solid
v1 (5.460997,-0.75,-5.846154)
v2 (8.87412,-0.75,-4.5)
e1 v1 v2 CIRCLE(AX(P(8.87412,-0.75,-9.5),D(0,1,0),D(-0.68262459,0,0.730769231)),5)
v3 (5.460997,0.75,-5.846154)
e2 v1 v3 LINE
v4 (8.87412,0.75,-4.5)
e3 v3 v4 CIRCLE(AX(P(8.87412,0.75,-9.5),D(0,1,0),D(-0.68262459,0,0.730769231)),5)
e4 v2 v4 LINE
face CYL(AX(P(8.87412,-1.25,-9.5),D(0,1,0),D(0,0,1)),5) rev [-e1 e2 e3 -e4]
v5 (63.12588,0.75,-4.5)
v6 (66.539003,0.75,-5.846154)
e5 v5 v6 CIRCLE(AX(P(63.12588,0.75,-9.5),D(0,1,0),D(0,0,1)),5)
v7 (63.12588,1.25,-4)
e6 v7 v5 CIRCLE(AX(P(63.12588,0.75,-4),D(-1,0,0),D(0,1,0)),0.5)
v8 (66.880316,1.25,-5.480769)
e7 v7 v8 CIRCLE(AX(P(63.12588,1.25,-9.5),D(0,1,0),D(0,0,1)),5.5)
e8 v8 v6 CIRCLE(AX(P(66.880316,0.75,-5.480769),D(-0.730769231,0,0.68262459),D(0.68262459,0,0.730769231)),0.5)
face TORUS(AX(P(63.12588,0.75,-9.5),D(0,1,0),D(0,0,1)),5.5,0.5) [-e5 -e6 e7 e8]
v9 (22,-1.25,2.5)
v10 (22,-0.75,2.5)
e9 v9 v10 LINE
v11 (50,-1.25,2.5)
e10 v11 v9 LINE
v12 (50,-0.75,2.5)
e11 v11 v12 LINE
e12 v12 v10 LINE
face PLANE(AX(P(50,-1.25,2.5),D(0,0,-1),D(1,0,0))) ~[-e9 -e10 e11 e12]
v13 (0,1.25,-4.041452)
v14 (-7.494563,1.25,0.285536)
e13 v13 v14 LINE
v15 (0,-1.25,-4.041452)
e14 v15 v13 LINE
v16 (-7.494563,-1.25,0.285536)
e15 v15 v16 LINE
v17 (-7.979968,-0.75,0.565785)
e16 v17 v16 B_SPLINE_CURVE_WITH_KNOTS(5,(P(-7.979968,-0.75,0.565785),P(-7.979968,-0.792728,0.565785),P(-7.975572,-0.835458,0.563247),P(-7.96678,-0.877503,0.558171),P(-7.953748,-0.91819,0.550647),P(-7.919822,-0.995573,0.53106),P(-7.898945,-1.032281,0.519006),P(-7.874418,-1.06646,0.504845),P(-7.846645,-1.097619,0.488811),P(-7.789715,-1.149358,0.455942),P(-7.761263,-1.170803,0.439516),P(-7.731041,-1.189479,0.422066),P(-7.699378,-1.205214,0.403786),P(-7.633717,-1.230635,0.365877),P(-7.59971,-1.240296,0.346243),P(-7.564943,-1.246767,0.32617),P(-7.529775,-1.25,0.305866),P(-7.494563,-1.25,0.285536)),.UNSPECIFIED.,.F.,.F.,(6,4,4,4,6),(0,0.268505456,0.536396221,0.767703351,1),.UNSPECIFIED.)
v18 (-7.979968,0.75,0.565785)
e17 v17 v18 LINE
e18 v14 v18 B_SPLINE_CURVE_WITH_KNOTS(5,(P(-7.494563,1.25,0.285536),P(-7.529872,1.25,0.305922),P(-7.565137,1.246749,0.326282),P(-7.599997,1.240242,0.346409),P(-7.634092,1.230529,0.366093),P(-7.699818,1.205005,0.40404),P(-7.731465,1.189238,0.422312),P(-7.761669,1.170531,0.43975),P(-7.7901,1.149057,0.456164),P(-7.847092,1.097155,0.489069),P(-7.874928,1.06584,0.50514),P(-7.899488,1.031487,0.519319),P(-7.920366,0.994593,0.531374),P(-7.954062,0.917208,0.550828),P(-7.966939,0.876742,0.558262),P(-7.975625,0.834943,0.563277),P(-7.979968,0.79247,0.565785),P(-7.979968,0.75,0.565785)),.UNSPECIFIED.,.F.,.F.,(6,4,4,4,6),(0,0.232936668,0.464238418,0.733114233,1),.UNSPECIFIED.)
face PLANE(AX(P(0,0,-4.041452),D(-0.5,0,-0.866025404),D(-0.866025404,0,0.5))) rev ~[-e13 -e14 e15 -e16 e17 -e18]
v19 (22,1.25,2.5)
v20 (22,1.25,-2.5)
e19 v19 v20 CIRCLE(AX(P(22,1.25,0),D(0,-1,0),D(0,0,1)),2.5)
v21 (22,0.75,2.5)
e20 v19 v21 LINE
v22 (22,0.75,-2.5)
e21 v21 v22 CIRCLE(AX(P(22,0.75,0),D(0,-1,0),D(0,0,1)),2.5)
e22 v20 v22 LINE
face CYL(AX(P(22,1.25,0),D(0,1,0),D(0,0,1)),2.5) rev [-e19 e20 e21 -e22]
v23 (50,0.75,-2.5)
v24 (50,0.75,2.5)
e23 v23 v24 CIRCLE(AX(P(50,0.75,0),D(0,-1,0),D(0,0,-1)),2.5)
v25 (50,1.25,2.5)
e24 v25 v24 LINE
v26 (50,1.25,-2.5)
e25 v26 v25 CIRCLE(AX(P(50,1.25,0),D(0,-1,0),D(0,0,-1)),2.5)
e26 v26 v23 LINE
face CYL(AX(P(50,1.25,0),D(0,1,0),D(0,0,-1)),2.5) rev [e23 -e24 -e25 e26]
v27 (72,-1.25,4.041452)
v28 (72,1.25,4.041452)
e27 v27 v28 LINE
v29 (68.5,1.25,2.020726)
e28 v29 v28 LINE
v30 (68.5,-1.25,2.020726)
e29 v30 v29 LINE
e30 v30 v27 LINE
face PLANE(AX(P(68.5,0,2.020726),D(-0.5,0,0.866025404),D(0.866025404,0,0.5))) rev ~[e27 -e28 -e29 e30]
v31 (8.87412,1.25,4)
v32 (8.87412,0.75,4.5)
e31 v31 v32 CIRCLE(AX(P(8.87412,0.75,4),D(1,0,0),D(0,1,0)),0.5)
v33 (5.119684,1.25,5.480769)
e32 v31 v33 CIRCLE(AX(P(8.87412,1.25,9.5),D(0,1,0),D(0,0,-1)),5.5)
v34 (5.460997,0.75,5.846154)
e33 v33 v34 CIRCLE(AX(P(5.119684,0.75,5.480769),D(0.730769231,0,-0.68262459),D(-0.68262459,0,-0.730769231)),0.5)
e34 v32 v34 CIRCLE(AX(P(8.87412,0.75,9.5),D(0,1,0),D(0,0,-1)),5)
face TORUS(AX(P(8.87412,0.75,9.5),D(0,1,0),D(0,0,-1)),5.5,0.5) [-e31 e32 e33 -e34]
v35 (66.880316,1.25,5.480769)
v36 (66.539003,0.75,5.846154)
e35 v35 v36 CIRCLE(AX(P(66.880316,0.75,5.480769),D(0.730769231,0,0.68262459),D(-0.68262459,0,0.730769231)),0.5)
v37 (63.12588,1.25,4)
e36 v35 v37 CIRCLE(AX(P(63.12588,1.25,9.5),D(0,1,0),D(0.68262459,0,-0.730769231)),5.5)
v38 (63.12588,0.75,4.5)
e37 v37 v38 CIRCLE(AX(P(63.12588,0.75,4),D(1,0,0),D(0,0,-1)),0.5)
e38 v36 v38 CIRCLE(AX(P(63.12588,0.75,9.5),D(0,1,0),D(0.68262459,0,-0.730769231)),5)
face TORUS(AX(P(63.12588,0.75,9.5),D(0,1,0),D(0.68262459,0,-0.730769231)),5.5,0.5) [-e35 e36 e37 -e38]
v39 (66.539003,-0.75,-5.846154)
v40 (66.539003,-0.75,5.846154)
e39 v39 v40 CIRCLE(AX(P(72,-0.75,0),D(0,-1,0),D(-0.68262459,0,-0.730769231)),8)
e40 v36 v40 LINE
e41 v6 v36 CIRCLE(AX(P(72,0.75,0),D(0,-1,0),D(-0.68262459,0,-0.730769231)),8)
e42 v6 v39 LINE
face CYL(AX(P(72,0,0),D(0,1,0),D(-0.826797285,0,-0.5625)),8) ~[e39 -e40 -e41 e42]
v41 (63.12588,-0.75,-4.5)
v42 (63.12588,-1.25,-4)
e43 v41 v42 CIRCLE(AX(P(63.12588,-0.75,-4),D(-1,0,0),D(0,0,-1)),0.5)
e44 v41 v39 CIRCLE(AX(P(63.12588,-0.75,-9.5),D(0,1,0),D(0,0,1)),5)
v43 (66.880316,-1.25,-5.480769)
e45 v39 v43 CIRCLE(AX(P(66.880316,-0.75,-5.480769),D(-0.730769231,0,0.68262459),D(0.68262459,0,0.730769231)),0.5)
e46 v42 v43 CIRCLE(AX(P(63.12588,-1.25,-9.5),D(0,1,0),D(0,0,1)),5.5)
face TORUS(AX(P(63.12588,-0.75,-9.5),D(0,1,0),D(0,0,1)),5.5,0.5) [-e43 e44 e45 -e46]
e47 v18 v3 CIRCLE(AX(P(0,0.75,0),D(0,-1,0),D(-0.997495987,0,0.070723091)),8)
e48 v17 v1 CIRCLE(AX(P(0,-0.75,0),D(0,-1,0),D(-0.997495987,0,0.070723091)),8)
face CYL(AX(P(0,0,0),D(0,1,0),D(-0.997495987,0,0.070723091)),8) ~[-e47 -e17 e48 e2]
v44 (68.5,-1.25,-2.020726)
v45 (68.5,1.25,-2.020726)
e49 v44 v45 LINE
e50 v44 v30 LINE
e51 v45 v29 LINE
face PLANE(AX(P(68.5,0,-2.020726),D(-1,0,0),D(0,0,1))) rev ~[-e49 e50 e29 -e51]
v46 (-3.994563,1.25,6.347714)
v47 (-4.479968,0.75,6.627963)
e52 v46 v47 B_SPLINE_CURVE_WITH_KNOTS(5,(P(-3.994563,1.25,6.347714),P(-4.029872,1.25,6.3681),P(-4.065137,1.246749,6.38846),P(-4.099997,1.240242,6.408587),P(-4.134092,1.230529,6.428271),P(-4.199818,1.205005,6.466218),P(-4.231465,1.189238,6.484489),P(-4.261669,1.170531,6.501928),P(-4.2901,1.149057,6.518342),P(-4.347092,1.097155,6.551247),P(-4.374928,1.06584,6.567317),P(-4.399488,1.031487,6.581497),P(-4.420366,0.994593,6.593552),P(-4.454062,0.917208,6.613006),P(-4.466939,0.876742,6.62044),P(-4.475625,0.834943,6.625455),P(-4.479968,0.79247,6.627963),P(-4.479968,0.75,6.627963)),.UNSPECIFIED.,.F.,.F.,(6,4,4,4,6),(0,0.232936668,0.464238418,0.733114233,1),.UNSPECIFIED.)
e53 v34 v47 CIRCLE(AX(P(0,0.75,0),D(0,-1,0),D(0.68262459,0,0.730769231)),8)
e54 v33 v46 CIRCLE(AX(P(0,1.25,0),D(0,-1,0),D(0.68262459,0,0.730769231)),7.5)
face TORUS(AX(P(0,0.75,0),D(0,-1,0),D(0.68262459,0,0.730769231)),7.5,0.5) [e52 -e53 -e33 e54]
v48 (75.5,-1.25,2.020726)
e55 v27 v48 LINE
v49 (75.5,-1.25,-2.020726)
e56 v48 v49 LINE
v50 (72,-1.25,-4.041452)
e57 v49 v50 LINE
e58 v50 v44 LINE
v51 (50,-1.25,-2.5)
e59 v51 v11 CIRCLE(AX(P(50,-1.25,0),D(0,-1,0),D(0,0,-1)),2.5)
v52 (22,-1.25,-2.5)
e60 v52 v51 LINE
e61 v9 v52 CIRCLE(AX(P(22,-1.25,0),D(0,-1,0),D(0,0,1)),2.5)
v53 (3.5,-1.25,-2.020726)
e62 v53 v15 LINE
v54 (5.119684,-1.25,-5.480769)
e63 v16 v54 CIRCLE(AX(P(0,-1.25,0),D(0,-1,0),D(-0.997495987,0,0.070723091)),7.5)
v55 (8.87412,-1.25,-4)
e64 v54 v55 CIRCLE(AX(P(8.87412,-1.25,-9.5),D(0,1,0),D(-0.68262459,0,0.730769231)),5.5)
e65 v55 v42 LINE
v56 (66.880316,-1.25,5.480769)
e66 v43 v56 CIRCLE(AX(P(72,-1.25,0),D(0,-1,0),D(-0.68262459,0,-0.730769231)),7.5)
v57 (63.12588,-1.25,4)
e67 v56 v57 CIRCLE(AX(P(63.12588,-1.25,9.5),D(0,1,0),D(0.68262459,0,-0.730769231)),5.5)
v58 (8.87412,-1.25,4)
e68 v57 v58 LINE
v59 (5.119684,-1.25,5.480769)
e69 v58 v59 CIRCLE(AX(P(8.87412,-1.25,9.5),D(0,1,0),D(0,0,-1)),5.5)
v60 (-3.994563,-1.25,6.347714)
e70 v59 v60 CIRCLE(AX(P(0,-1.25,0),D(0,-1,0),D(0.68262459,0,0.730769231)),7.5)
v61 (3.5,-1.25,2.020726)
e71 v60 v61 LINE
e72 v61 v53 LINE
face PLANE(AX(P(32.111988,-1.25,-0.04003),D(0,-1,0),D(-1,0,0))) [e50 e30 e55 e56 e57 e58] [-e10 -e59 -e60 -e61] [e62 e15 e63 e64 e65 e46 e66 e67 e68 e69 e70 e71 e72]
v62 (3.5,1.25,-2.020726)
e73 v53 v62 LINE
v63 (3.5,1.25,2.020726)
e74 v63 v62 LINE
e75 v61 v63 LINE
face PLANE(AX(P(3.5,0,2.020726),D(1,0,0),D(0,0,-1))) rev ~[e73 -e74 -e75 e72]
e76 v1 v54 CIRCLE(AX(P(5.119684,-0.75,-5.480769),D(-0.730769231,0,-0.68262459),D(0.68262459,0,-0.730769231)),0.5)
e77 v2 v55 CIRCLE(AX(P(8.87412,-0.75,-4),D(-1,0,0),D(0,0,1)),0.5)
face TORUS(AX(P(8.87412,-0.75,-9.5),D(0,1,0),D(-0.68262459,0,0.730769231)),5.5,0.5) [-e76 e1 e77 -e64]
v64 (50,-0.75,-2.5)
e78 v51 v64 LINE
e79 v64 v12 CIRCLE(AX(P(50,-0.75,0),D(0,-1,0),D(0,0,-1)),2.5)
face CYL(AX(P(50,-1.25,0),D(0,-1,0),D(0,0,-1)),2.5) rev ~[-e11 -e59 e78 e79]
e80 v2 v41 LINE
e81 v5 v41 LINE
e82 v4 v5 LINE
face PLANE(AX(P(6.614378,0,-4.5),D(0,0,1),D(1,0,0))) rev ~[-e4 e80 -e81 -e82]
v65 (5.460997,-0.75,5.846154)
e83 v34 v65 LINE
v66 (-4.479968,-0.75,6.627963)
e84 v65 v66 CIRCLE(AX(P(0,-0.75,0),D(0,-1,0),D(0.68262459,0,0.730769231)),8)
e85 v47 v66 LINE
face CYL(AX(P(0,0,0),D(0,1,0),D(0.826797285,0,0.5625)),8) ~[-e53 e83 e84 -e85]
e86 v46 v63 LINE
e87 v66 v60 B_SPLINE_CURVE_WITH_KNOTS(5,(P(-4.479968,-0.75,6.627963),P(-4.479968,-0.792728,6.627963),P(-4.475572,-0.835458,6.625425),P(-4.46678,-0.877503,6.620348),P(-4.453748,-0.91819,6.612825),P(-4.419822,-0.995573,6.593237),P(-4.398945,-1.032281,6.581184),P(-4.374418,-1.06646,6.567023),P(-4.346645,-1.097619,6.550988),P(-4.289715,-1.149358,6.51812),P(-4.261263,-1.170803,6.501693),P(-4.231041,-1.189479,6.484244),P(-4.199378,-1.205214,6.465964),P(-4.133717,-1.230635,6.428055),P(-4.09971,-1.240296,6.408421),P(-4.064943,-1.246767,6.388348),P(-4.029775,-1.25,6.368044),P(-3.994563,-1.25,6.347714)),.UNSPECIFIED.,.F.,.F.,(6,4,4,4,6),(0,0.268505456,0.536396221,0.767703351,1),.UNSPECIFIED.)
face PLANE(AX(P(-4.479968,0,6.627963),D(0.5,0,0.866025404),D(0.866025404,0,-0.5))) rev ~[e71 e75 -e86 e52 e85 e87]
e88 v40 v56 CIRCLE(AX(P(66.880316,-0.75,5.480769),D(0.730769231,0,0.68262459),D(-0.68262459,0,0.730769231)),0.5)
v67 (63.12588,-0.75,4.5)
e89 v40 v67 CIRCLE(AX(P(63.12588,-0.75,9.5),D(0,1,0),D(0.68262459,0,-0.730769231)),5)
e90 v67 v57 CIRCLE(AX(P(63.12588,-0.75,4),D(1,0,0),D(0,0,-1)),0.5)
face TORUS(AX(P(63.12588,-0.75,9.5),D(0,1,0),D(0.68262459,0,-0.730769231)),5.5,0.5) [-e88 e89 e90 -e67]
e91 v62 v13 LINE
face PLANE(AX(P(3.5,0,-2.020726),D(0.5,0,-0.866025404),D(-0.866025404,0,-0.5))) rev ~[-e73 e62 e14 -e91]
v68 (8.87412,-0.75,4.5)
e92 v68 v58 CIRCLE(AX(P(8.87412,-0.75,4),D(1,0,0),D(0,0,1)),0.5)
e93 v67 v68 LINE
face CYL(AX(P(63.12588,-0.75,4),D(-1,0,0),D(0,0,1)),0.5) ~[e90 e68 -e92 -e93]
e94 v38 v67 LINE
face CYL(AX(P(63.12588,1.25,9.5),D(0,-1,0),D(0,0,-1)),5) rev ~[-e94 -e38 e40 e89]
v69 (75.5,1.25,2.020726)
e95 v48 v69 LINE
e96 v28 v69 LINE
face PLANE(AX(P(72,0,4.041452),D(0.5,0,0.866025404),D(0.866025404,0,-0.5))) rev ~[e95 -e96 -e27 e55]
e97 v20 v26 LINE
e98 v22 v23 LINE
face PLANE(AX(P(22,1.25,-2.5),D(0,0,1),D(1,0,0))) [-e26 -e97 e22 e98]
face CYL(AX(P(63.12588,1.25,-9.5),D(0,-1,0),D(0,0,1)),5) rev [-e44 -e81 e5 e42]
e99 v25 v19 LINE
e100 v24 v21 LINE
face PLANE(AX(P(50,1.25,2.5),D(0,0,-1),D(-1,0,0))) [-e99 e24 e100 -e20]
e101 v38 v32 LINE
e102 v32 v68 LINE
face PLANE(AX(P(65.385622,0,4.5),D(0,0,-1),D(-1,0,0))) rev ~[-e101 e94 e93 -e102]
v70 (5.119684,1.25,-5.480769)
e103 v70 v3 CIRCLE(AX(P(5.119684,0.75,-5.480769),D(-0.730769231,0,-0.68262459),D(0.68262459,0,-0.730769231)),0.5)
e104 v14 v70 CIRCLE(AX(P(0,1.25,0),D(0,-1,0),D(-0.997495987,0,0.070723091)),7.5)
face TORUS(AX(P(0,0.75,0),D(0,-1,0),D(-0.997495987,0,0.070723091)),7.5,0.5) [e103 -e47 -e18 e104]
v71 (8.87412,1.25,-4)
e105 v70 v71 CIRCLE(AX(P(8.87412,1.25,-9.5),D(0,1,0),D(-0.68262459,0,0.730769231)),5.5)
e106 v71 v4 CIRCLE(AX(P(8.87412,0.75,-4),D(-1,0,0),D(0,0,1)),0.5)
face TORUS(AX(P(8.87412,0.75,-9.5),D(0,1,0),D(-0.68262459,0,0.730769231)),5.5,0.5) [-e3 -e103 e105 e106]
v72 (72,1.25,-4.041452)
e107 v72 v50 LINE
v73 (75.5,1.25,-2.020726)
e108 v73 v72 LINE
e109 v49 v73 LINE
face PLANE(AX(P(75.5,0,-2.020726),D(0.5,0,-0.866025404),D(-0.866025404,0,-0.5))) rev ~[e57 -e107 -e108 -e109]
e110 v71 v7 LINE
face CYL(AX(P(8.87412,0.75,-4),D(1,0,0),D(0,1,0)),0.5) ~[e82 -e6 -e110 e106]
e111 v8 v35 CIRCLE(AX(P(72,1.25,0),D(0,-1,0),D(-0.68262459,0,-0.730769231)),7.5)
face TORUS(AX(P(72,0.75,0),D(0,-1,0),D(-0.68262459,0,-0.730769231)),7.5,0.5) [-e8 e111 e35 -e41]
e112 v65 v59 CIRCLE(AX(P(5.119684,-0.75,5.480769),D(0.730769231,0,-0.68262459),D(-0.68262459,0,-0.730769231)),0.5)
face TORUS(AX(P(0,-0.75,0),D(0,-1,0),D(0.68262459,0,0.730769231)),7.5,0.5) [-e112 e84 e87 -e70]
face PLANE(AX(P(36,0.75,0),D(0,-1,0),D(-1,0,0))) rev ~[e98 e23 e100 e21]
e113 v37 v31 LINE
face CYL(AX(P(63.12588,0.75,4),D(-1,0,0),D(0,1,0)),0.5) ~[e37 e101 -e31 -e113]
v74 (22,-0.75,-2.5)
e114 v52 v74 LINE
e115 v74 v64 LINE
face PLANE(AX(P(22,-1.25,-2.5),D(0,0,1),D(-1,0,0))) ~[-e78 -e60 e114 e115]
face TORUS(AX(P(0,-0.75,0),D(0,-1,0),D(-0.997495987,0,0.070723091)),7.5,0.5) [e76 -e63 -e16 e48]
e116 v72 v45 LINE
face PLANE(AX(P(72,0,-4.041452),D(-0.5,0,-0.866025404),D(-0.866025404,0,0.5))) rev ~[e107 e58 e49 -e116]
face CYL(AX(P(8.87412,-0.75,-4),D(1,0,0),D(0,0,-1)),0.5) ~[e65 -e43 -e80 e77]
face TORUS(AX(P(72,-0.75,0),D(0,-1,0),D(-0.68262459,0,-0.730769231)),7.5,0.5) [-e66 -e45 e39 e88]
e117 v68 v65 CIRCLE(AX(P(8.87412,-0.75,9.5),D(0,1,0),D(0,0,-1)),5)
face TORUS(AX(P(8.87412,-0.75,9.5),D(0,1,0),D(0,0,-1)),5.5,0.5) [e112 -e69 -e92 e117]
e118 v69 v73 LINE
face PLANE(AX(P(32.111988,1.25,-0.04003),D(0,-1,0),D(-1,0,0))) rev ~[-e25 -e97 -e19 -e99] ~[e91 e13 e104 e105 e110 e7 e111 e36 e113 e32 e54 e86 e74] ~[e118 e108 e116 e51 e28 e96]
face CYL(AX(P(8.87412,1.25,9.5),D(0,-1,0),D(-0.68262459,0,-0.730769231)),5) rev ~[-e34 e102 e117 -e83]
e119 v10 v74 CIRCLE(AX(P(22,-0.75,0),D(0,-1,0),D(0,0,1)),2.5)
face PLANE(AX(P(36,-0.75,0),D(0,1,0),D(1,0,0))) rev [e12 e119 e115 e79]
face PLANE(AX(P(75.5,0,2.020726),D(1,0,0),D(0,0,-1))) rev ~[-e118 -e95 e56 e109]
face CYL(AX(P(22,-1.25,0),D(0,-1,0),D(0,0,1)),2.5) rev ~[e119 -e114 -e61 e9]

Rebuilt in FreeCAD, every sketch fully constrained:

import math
import FreeCAD as App
import Part
import Sketcher
from FreeCAD import Vector
Q = App.Units.Quantity


def edges_at(feature, points):
    """Names of the edges that pass closest to the given points."""
    edges = feature.Shape.Edges
    near = lambda p: min(range(len(edges)), key=lambda i: edges[i].distToShape(Part.Vertex(*p))[0])
    return sorted({f"Edge{near(p) + 1}" for p in points})


def add_polygon(sketch, points):
    """Adds a closed chain of lines whose ends are joined by coincident constraints."""
    first, n = sketch.GeometryCount, len(points)
    for a, b in zip(points, points[1:] + points[:1]):
        sketch.addGeometry(Part.LineSegment(App.Vector(*a, 0), App.Vector(*b, 0)), False)
    for i in range(n):
        sketch.addConstraint(Sketcher.Constraint("Coincident", first + i, 2, first + (i + 1) % n, 1))

doc = App.newDocument("Part")
params = doc.addObject("Spreadsheet::Sheet", "Params")
for row, (alias, value) in enumerate([
    ("sketch1_radius", "8 mm"),
    ("pad1_length", "2.5 mm"),
    ("fillet_radius", "5 mm"),
    ("fillet2_radius", "0.5 mm"),
    ("sketch2_radius", "2.5 mm"),
    ("sketch2_width", "28 mm"),
    ("pocket1_length", "0.5 mm"),
], start=1):
    params.set(f"A{row}", alias)
    params.set(f"B{row}", "=" + value)
    params.setAlias(f"B{row}", alias)

body = doc.addObject("PartDesign::Body", "Body")

# Sketch on XZ plane
sketch1 = doc.addObject("Sketcher::SketchObject", "Sketch")
body.addObject(sketch1)
sketch1.AttachmentSupport = (doc.XZ_Plane, [""])
sketch1.MapMode = "FlatFace"
sketch1.addGeometry(Part.LineSegment(Vector(65.4, -4.5, 0), Vector(6.6, -4.5, 0)), False)  # 0
sketch1.addGeometry(Part.ArcOfCircle(Part.Circle(Vector(0, 0, 0), Vector(0, 0, 1), 8), math.radians(176), math.radians(326)), False)  # 1
sketch1.addGeometry(Part.LineSegment(Vector(-8, 0.6, 0), Vector(0, -4, 0)), False)  # 2
sketch1.addGeometry(Part.LineSegment(Vector(0, -4, 0), Vector(3.5, -2, 0)), False)  # 3
sketch1.addGeometry(Part.LineSegment(Vector(3.5, -2, 0), Vector(3.5, 2, 0)), False)  # 4
sketch1.addGeometry(Part.LineSegment(Vector(3.5, 2, 0), Vector(-4.5, 6.6, 0)), False)  # 5
sketch1.addGeometry(Part.ArcOfCircle(Part.Circle(Vector(0, 0, 0), Vector(0, 0, 1), 8), math.radians(34), math.radians(124)), False)  # 6
sketch1.addGeometry(Part.LineSegment(Vector(6.6, 4.5, 0), Vector(65.4, 4.5, 0)), False)  # 7
sketch1.addGeometry(Part.ArcOfCircle(Part.Circle(Vector(72, 0, 0), Vector(0, 0, 1), 8), math.radians(-146), math.radians(146)), False)  # 8
add_polygon(sketch1, [(72, -4), (75.5, -2), (75.5, 2), (72, 4), (68.5, 2), (68.5, -2)])  # lines 9-14
sketch1.addConstraint([
    Sketcher.Constraint("Coincident", 0, 2, 1, 2),
    Sketcher.Constraint("Coincident", 1, 1, 2, 1),
    Sketcher.Constraint("Coincident", 2, 2, 3, 1),
    Sketcher.Constraint("Coincident", 3, 2, 4, 1),
    Sketcher.Constraint("Coincident", 4, 2, 5, 1),
    Sketcher.Constraint("Coincident", 5, 2, 6, 2),
    Sketcher.Constraint("Coincident", 6, 1, 7, 1),
    Sketcher.Constraint("Coincident", 7, 2, 8, 2),
    Sketcher.Constraint("Coincident", 8, 1, 0, 1),
    Sketcher.Constraint("Horizontal", 0),
    Sketcher.Constraint("Vertical", 4),
    Sketcher.Constraint("Horizontal", 7),
    Sketcher.Constraint("Vertical", 10),
    Sketcher.Constraint("Vertical", 13),
    Sketcher.Constraint("Coincident", 1, 3, -1, 1),
    Sketcher.Constraint("Coincident", 6, 3, -1, 1),
    Sketcher.Constraint("Equal", 1, 6),
    Sketcher.Constraint("Equal", 6, 8),
    Sketcher.Constraint("Symmetric", 7, 2, 8, 1, -1),
    Sketcher.Constraint("Symmetric", 11, 2, 14, 2, -1),
    Sketcher.Constraint("PointOnObject", 2, 2, -2),
    Sketcher.Constraint("Parallel", 2, 5),
    Sketcher.Constraint("Parallel", 3, 9),
    Sketcher.Constraint("Parallel", 5, 11),
    Sketcher.Constraint("Parallel", 9, 12),
    Sketcher.Constraint("Parallel", 11, 14),
    Sketcher.Constraint("Horizontal", 3, 2, 9, 2),
    Sketcher.Constraint("Horizontal", 4, 2, 10, 2),
    Sketcher.Constraint("Horizontal", 10, 2, 12, 2),
    Sketcher.Constraint("Horizontal", 9, 2, 13, 2),
    Sketcher.Constraint("Horizontal", 2, 2, 14, 2),
    Sketcher.Constraint("Vertical", 8, 3, 11, 2),
    Sketcher.Constraint("Equal", 2, 5),
    Sketcher.Constraint("Radius", 1, 8.0),
    Sketcher.Constraint("Angle", 2, Q("-30 deg")),
    Sketcher.Constraint("DistanceX", -1, 1, 8, 3, 72.0),
    Sketcher.Constraint("DistanceY", 0, 2, 6, 1, 9.0),
    Sketcher.Constraint("DistanceX", 12, 2, 10, 2, 7.0),
])
sketch1.setExpression("Constraints[39]", "Params.sketch1_radius")
pad1 = doc.addObject("PartDesign::Pad", "Pad")
body.addObject(pad1)
pad1.Profile = sketch1
pad1.setExpression("Length", "Params.pad1_length")
pad1.Midplane = True
doc.recompute()

fillet = doc.addObject("PartDesign::Fillet", "Fillet")
body.addObject(fillet)
fillet.Base = (pad1, edges_at(pad1, [
    (6.614, 0, -4.5),
    (65.386, 0, -4.5),
    (65.386, 0, 4.5),
    (6.614, 0, 4.5),
]))
fillet.setExpression("Radius", "Params.fillet_radius")
doc.recompute()

fillet2 = doc.addObject("PartDesign::Fillet", "Fillet001")
body.addObject(fillet2)
fillet2.Base = (fillet, edges_at(fillet, [
    (0.627, 1.25, 7.975),
    (36, -1.25, -4.5),
    (36, 1.25, -4.5),
    (80, -1.25, 0),
    (80, 1.25, 0),
    (36, -1.25, 4.5),
    (36, 1.25, 4.5),
    (-3.444, -1.25, -7.22),
    (-3.444, 1.25, -7.22),
    (64.96, -1.25, -4.849),
    (64.96, 1.25, -4.849),
    (64.96, -1.25, 4.849),
    (64.96, 1.25, 4.849),
    (7.04, -1.25, 4.849),
    (7.04, 1.25, 4.849),
    (7.04, -1.25, -4.849),
    (7.04, 1.25, -4.849),
    (0.627, -1.25, 7.975),
]))
fillet2.setExpression("Radius", "Params.fillet2_radius")

# Sketch on XZ plane
sketch2 = doc.addObject("Sketcher::SketchObject", "Sketch001")
body.addObject(sketch2)
sketch2.AttachmentSupport = (doc.XZ_Plane, [""])
sketch2.MapMode = "FlatFace"
sketch2.AttachmentOffset = App.Placement(Vector(0, 0, -1.25), App.Rotation())
sketch2.addGeometry([
    Part.LineSegment(Vector(50, -2.5, 0), Vector(22, -2.5, 0)),
    Part.ArcOfCircle(Part.Circle(Vector(22, 0, 0), Vector(0, 0, 1), 2.5), math.radians(90), math.radians(270)),
    Part.LineSegment(Vector(22, 2.5, 0), Vector(50, 2.5, 0)),
    Part.ArcOfCircle(Part.Circle(Vector(50, 0, 0), Vector(0, 0, 1), 2.5), math.radians(-90), math.radians(90)),
], False)
sketch2.addConstraint([
    Sketcher.Constraint("Tangent", 0, 2, 1, 2),
    Sketcher.Constraint("Tangent", 1, 1, 2, 1),
    Sketcher.Constraint("Tangent", 2, 2, 3, 2),
    Sketcher.Constraint("Tangent", 3, 1, 0, 1),
    Sketcher.Constraint("Horizontal", 0),
    Sketcher.Constraint("Horizontal", 2),
    Sketcher.Constraint("PointOnObject", 1, 3, -1),
    Sketcher.Constraint("Radius", 1, 2.5),
    Sketcher.Constraint("DistanceX", 0, 2, 0, 1, 28.0),
    Sketcher.Constraint("DistanceX", -1, 1, 1, 3, 22.0),
])
sketch2.setExpression("Constraints[7]", "Params.sketch2_radius")
sketch2.setExpression("Constraints[8]", "Params.sketch2_width")
pocket1 = doc.addObject("PartDesign::Pocket", "Pocket")
body.addObject(pocket1)
pocket1.Profile = sketch2
pocket1.setExpression("Length", "Params.pocket1_length")
pocket1.Reversed = True
doc.recompute()

mirrored = doc.addObject("PartDesign::Mirrored", "Mirrored")
body.addObject(mirrored)
mirrored.Originals = [pocket1]
mirrored.MirrorPlane = (doc.XZ_Plane, [""])
body.Tip = mirrored

doc.recompute()
